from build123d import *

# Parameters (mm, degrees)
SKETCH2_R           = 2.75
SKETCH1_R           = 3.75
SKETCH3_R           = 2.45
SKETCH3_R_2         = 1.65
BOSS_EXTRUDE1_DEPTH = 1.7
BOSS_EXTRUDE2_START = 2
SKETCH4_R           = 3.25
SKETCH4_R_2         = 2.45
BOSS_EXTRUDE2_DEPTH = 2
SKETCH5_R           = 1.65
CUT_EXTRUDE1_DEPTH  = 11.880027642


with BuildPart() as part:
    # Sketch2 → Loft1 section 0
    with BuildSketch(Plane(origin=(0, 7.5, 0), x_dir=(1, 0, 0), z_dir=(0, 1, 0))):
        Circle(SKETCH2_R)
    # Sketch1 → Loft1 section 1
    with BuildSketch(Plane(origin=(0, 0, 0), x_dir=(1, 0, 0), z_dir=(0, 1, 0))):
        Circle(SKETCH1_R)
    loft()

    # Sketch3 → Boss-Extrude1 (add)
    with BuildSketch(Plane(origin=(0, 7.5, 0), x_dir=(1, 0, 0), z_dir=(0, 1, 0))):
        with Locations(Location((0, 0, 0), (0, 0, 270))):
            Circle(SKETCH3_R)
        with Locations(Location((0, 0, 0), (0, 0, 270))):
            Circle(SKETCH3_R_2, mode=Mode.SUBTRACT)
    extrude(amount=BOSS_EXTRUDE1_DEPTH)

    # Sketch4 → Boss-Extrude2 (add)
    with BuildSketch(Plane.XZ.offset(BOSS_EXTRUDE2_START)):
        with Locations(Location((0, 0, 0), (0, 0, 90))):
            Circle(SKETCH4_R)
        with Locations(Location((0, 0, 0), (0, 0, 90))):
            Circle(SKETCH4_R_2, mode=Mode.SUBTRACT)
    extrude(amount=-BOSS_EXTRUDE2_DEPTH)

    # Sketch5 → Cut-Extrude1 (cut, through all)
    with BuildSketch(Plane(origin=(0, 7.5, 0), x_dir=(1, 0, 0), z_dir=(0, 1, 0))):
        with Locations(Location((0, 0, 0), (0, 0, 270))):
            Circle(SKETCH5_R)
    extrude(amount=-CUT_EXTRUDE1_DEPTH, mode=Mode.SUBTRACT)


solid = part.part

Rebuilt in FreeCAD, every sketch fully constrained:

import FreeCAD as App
import Part
import Sketcher

doc = App.newDocument("Part")
body = doc.addObject("PartDesign::Body", "Body")

# Sketch on XZ plane
sketch1 = body.newObject("Sketcher::SketchObject", "Sketch")
sketch1.AttachmentSupport = (doc.getObject("XZ_Plane"), [""])
sketch1.MapMode = "FlatFace"
sketch1.AttachmentOffset = App.Placement(App.Vector(0, 0, -7.5), App.Rotation())
sketch1.addGeometry(Part.Circle(App.Vector(0, 0, 0), App.Vector(0, 0, 1), 2.75), False)
sketch1.addConstraint(Sketcher.Constraint("Coincident", 0, 3, -1, 1))
sketch1.addConstraint(Sketcher.Constraint("Diameter", 0, 5.5))

# Sketch on XZ plane
sketch2 = body.newObject("Sketcher::SketchObject", "Sketch001")
sketch2.AttachmentSupport = (doc.getObject("XZ_Plane"), [""])
sketch2.MapMode = "FlatFace"
sketch2.addGeometry(Part.Circle(App.Vector(0, 0, 0), App.Vector(0, 0, 1), 3.75), False)
sketch2.addConstraint(Sketcher.Constraint("Coincident", 0, 3, -1, 1))
sketch2.addConstraint(Sketcher.Constraint("Diameter", 0, 7.5))

additiveloft = body.newObject("PartDesign::AdditiveLoft", "AdditiveLoft")
additiveloft.Profile = sketch1
additiveloft.Sections = [sketch2]

# Sketch on XZ plane
sketch3 = body.newObject("Sketcher::SketchObject", "Sketch002")
sketch3.AttachmentSupport = (doc.getObject("XZ_Plane"), [""])
sketch3.MapMode = "FlatFace"
sketch3.AttachmentOffset = App.Placement(App.Vector(0, 0, -7.5), App.Rotation())
sketch3.addGeometry(Part.Circle(App.Vector(0, 0, 0), App.Vector(0, 0, 1), 2.45), False)
sketch3.addGeometry(Part.Circle(App.Vector(0, 0, 0), App.Vector(0, 0, 1), 1.65), False)
sketch3.addConstraint(Sketcher.Constraint("Coincident", 0, 3, -1, 1))
sketch3.addConstraint(Sketcher.Constraint("Coincident", 1, 3, -1, 1))
sketch3.addConstraint(Sketcher.Constraint("Diameter", 0, 4.9))
sketch3.addConstraint(Sketcher.Constraint("Diameter", 1, 3.3))
pad1 = body.newObject("PartDesign::Pad", "Pad")
pad1.Profile = sketch3
pad1.Length = 1.7
pad1.Reversed = True

# Sketch on XZ plane
sketch4 = body.newObject("Sketcher::SketchObject", "Sketch003")
sketch4.AttachmentSupport = (doc.getObject("XZ_Plane"), [""])
sketch4.MapMode = "FlatFace"
sketch4.AttachmentOffset = App.Placement(App.Vector(0, 0, 2), App.Rotation())
sketch4.addGeometry(Part.Circle(App.Vector(0, 0, 0), App.Vector(0, 0, 1), 3.25), False)
sketch4.addGeometry(Part.Circle(App.Vector(0, 0, 0), App.Vector(0, 0, 1), 2.45), False)
sketch4.addConstraint(Sketcher.Constraint("Coincident", 0, 3, -1, 1))
sketch4.addConstraint(Sketcher.Constraint("Coincident", 1, 3, -1, 1))
sketch4.addConstraint(Sketcher.Constraint("Diameter", 0, 6.5))
sketch4.addConstraint(Sketcher.Constraint("Diameter", 1, 4.9))
pad2 = body.newObject("PartDesign::Pad", "Pad001")
pad2.Profile = sketch4
pad2.Length = 2
pad2.Reversed = True

# Sketch on XZ plane
sketch5 = body.newObject("Sketcher::SketchObject", "Sketch004")
sketch5.AttachmentSupport = (doc.getObject("XZ_Plane"), [""])
sketch5.MapMode = "FlatFace"
sketch5.AttachmentOffset = App.Placement(App.Vector(0, 0, -7.5), App.Rotation())
sketch5.addGeometry(Part.Circle(App.Vector(0, 0, 0), App.Vector(0, 0, 1), 1.65), False)
sketch5.addConstraint(Sketcher.Constraint("Coincident", 0, 3, -1, 1))
sketch5.addConstraint(Sketcher.Constraint("Diameter", 0, 3.3))
pocket1 = body.newObject("PartDesign::Pocket", "Pocket")
pocket1.Profile = sketch5
pocket1.Type = "ThroughAll"
pocket1.Reversed = True

doc.recompute()
